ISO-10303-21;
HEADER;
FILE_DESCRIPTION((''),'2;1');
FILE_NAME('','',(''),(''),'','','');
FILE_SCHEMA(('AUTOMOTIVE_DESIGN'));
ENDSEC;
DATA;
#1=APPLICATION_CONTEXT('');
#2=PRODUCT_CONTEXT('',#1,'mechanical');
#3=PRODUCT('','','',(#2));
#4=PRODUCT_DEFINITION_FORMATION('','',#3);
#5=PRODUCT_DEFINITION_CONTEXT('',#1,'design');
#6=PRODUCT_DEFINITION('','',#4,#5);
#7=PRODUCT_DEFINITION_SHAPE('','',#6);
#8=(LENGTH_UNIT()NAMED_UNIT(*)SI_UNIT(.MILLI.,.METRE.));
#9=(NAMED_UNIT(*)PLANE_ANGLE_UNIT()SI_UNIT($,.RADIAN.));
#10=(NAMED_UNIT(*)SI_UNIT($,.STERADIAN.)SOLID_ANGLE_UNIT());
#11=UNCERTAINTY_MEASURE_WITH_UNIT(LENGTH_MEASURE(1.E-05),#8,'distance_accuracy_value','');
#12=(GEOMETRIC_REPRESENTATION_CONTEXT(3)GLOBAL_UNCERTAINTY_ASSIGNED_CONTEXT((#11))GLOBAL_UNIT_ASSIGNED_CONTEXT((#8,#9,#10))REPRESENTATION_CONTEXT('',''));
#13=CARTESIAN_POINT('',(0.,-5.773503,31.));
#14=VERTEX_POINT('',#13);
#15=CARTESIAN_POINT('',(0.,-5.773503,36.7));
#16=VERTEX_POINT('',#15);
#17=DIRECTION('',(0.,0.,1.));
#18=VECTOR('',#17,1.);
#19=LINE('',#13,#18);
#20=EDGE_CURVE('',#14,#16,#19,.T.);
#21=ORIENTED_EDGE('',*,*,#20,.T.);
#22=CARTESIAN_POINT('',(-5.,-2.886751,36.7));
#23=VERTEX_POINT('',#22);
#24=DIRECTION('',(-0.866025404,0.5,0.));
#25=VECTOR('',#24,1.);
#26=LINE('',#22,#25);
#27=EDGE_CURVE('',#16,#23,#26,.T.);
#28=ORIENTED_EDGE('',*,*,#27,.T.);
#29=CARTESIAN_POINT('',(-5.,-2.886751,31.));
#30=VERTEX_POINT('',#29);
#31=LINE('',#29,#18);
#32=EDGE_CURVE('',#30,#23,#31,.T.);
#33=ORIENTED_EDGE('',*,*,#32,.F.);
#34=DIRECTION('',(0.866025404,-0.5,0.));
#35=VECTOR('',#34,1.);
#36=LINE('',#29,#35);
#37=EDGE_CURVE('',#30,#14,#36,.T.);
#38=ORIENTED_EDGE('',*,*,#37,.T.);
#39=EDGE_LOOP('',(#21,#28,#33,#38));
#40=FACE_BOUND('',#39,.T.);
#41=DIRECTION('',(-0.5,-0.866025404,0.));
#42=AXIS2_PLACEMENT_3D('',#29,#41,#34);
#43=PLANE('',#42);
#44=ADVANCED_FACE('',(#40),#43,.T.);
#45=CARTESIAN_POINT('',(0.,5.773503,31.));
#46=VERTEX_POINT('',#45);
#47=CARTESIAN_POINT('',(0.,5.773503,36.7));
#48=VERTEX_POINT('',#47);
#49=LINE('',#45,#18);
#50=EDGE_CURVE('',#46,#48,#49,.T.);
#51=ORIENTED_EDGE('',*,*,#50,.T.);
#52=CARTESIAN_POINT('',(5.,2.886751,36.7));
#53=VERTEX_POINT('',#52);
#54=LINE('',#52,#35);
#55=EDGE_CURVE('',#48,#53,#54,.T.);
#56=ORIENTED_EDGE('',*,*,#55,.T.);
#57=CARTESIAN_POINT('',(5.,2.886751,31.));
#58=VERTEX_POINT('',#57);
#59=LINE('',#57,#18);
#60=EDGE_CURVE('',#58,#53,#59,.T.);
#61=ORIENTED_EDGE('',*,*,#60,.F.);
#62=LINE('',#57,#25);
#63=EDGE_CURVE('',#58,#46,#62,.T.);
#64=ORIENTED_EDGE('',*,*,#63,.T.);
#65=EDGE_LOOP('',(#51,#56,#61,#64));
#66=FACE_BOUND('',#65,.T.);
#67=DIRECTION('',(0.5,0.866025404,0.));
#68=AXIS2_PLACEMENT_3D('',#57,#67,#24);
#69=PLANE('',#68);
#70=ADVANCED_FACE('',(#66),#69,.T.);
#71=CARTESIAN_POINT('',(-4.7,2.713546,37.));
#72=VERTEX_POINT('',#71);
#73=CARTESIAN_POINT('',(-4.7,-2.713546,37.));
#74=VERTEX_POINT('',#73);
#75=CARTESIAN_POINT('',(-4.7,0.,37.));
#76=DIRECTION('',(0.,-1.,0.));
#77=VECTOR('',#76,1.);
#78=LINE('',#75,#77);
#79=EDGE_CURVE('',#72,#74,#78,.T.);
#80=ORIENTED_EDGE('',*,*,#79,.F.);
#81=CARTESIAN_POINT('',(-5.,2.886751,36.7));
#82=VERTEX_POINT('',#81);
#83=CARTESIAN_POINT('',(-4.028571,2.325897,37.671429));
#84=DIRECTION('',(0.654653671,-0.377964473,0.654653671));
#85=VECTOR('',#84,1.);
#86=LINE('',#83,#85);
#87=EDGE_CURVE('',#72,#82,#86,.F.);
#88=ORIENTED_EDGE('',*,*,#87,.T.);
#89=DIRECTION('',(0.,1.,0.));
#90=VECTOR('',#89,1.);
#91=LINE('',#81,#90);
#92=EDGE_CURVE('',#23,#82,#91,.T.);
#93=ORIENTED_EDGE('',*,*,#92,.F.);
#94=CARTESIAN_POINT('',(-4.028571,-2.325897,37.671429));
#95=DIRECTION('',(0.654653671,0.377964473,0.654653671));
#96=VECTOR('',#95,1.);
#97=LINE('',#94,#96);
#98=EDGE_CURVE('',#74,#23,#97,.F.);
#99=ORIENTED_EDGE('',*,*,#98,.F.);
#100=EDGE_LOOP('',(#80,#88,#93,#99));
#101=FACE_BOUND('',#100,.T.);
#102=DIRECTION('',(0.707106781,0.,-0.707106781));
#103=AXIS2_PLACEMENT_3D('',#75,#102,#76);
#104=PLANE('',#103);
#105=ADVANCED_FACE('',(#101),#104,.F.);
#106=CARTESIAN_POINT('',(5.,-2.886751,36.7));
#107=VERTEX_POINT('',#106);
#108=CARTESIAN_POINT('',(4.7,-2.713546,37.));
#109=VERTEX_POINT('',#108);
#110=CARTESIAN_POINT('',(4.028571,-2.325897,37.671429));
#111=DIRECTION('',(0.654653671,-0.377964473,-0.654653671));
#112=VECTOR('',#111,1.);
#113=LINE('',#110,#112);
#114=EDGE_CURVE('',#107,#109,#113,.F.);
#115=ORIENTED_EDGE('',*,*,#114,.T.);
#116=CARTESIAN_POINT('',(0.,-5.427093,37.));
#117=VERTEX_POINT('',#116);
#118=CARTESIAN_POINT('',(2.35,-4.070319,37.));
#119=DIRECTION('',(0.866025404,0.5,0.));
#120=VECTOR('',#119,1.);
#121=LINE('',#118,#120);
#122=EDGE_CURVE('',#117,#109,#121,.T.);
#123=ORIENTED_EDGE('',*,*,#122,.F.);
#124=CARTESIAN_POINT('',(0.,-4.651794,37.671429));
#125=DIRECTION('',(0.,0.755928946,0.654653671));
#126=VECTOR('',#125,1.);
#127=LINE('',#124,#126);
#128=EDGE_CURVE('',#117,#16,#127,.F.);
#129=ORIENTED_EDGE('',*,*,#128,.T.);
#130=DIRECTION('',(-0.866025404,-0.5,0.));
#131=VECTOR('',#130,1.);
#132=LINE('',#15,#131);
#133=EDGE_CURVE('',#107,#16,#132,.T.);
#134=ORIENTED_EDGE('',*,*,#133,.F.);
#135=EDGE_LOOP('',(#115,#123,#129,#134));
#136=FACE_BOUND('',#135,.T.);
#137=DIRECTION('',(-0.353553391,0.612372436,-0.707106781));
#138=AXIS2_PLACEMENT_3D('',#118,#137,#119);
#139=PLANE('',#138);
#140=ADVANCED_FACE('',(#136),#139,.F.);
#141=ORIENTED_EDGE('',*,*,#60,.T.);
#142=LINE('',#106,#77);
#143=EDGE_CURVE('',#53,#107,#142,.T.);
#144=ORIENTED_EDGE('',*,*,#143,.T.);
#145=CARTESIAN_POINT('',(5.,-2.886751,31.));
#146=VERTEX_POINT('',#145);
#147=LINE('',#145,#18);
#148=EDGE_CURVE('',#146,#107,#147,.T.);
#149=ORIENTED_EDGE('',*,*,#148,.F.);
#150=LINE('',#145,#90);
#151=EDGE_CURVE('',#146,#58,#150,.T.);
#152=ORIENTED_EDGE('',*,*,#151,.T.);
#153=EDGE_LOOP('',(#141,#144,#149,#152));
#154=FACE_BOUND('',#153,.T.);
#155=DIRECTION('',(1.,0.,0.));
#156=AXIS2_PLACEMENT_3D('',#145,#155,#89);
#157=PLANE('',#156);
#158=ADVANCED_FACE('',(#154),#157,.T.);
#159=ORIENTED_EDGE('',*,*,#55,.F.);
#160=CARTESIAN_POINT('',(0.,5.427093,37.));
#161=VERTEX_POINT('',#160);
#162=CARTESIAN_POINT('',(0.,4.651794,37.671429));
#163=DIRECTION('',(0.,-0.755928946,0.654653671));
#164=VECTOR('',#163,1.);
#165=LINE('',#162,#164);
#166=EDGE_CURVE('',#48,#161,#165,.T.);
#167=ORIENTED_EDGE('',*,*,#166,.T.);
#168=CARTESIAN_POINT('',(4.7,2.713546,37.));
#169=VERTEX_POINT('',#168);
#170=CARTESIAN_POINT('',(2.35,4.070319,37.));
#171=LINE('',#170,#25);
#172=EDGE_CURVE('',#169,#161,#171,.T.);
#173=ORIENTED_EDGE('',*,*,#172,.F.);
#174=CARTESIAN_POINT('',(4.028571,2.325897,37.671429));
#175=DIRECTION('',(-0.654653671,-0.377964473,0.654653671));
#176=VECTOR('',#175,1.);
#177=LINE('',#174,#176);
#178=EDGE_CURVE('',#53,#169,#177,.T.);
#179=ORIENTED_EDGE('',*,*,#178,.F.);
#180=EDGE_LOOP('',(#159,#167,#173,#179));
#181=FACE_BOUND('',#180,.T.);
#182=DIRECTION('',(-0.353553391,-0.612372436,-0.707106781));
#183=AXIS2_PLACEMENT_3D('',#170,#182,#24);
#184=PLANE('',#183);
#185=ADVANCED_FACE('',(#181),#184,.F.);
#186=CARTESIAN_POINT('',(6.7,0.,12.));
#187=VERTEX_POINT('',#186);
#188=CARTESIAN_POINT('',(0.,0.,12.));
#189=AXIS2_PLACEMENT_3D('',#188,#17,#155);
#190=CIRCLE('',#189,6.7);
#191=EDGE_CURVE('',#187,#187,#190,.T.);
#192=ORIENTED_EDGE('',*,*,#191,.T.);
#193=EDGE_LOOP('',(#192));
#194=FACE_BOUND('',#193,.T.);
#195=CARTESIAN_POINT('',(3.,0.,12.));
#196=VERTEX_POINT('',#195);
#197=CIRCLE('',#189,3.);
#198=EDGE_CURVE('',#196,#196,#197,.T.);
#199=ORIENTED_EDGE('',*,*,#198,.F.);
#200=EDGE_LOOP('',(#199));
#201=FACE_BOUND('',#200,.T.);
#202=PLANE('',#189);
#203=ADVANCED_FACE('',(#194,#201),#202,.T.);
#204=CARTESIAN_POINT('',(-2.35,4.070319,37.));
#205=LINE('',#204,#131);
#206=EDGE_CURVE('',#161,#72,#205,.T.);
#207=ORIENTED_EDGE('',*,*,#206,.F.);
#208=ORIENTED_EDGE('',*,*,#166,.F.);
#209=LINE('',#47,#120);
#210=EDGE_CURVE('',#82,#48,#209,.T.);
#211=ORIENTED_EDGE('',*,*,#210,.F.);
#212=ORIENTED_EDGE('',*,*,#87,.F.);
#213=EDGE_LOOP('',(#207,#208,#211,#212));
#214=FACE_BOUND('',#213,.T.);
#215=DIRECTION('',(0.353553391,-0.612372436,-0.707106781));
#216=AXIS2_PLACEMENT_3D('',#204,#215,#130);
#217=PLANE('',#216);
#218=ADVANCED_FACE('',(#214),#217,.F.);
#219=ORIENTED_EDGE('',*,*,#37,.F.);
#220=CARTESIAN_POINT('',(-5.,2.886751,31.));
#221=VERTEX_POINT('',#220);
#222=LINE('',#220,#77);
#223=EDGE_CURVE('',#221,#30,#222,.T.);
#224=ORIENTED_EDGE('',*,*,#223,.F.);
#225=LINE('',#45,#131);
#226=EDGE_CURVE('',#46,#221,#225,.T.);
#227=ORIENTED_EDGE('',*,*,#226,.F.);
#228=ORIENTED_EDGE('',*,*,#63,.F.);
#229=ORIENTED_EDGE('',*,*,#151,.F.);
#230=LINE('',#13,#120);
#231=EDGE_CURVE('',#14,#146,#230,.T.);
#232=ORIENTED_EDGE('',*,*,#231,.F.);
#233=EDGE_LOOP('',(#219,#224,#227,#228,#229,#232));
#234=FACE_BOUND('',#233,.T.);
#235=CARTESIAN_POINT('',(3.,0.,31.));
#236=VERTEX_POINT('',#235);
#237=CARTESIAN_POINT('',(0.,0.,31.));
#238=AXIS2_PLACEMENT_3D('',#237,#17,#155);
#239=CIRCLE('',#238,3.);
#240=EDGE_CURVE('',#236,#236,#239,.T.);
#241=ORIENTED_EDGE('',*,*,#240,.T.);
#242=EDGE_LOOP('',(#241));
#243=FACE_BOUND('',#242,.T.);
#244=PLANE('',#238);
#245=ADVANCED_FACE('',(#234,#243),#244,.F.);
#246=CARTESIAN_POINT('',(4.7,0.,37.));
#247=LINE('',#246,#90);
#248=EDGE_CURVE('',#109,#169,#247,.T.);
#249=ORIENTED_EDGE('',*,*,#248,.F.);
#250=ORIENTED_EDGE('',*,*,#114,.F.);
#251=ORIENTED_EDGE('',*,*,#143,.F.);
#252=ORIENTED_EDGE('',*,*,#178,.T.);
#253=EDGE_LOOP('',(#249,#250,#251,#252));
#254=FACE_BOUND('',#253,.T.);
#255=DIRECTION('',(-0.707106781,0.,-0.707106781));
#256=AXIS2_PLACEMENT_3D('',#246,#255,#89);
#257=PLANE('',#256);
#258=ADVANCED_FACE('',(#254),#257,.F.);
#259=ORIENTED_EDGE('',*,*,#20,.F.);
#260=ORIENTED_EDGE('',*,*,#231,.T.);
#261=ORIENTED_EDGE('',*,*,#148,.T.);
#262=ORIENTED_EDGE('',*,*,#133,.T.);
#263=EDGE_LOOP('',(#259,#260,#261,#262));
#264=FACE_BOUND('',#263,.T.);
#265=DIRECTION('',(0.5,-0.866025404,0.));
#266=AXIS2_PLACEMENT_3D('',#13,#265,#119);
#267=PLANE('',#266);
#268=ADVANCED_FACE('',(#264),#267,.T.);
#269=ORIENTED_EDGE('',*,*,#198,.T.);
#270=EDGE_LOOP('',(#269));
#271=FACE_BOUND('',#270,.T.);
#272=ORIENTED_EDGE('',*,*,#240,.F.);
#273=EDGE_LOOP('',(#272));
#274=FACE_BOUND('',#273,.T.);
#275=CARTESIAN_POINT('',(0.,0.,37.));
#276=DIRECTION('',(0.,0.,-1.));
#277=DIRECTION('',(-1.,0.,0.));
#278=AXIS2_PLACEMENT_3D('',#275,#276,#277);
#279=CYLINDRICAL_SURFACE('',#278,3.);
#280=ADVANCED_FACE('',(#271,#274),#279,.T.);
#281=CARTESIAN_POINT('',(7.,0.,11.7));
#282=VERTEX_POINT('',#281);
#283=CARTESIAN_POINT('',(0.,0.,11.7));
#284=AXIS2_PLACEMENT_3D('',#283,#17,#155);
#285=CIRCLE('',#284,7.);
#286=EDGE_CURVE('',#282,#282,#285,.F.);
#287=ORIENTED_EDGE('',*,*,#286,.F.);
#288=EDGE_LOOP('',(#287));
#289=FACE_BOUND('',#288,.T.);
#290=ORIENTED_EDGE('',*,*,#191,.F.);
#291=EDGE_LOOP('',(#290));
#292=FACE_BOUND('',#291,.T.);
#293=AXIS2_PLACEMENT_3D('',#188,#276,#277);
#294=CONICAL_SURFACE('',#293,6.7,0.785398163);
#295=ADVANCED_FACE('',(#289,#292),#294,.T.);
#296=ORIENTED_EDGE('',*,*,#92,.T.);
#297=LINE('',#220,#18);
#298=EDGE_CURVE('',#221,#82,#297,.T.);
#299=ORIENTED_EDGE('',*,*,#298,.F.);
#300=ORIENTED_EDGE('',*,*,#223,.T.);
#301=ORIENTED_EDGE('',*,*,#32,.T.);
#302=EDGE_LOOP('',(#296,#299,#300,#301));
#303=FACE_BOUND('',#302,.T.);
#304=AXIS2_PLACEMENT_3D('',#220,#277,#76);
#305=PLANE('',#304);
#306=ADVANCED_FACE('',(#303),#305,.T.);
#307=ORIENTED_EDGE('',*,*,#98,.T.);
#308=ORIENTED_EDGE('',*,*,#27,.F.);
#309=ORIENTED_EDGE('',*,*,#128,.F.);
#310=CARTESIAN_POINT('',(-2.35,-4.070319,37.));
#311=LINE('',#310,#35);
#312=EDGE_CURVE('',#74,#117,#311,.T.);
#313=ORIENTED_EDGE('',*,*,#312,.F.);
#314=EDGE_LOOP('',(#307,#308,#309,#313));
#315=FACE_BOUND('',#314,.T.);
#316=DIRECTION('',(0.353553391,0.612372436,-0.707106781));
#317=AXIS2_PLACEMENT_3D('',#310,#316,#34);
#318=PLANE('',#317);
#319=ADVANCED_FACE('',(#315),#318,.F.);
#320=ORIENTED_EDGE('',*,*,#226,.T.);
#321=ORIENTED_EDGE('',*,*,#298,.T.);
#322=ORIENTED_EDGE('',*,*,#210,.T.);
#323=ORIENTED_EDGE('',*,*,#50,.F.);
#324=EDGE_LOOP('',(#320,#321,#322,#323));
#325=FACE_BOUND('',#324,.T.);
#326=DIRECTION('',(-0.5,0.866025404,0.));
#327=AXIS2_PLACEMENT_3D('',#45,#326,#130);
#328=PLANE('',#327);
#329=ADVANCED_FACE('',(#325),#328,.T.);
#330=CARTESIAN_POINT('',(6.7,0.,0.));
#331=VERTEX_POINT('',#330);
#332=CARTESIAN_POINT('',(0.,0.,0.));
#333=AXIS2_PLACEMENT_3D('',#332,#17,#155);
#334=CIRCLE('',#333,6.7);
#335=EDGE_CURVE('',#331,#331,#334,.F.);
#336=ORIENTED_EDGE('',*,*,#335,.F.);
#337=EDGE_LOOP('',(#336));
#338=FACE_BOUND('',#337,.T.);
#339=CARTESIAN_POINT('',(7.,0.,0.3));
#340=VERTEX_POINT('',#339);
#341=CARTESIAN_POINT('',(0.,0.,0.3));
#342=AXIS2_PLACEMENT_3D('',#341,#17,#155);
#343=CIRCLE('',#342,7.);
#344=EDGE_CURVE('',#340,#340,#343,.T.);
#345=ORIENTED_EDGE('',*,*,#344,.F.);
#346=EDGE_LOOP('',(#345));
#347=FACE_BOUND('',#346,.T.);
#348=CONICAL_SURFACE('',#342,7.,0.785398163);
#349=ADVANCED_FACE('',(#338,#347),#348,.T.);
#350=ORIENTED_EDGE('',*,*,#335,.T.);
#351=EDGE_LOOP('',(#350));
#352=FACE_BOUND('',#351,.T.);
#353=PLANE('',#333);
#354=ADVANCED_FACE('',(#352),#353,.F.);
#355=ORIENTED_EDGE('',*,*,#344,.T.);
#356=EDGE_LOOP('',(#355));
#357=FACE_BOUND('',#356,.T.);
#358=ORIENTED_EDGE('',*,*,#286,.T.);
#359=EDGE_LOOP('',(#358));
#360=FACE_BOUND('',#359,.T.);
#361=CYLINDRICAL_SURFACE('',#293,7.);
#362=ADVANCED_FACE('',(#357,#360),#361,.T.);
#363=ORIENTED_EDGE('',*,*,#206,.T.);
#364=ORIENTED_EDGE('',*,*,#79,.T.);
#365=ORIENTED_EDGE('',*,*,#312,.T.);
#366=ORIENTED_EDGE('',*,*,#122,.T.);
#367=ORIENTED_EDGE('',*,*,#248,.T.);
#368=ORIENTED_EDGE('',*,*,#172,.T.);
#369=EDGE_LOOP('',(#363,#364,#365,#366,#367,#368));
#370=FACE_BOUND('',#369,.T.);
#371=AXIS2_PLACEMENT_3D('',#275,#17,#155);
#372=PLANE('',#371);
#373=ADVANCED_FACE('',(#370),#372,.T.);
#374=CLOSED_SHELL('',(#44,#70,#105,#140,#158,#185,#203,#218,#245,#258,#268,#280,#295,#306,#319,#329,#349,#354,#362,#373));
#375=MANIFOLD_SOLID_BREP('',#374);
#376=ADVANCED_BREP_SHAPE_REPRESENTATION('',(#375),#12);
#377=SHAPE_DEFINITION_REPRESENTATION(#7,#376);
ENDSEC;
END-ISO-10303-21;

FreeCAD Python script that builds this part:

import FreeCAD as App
import Part
import Sketcher
from FreeCAD import Vector
Q = App.Units.Quantity


def edges_at(feature, points):
    """Names of the edges that pass closest to the given points."""
    edges = feature.Shape.Edges
    near = lambda p: min(range(len(edges)), key=lambda i: edges[i].distToShape(Part.Vertex(*p))[0])
    return sorted({f"Edge{near(p) + 1}" for p in points})


def add_polygon(sketch, points):
    """Adds a closed chain of lines whose ends are joined by coincident constraints."""
    first, n = sketch.GeometryCount, len(points)
    for a, b in zip(points, points[1:] + points[:1]):
        sketch.addGeometry(Part.LineSegment(App.Vector(*a, 0), App.Vector(*b, 0)), False)
    for i in range(n):
        sketch.addConstraint(Sketcher.Constraint("Coincident", first + i, 2, first + (i + 1) % n, 1))

doc = App.newDocument("Part")
body = doc.addObject("PartDesign::Body", "Body")

# Sketch on XY plane
sketch1 = body.newObject("Sketcher::SketchObject", "Sketch")
sketch1.AttachmentSupport = (doc.getObject("XY_Plane"), [""])
sketch1.MapMode = "FlatFace"
sketch1.addGeometry(Part.Circle(Vector(0, 0, 0), Vector(0, 0, 1), 7), False)
sketch1.addConstraint([
    Sketcher.Constraint("Coincident", 0, 3, -1, 1),
    Sketcher.Constraint("Diameter", 0, Q("14 mm")),
])
pad1 = body.newObject("PartDesign::Pad", "Pad")
pad1.Profile = sketch1
pad1.Length = 12

# Sketch on XY plane
sketch2 = body.newObject("Sketcher::SketchObject", "Sketch001")
sketch2.AttachmentSupport = (doc.getObject("XY_Plane"), [""])
sketch2.MapMode = "FlatFace"
sketch2.AttachmentOffset = App.Placement(Vector(0, 0, 12), App.Rotation())
sketch2.addGeometry(Part.Circle(Vector(0, 0, 0), Vector(0, 0, 1), 3), False)
sketch2.addConstraint([
    Sketcher.Constraint("Coincident", 0, 3, -1, 1),
    Sketcher.Constraint("Diameter", 0, Q("6 mm")),
])
pad2 = body.newObject("PartDesign::Pad", "Pad001")
pad2.Profile = sketch2
pad2.Length = 25

# Sketch on XY plane
sketch3 = body.newObject("Sketcher::SketchObject", "Sketch002")
sketch3.AttachmentSupport = (doc.getObject("XY_Plane"), [""])
sketch3.MapMode = "FlatFace"
sketch3.AttachmentOffset = App.Placement(Vector(0, 0, 37), App.Rotation())
add_polygon(sketch3, [(5, 3), (0, 6), (-5, 3), (-5, -3), (0, -6), (5, -3)])  # lines 0-5
sketch3.addConstraint([
    Sketcher.Constraint("Vertical", 2),
    Sketcher.Constraint("Vertical", 5),
    Sketcher.Constraint("Symmetric", 0, 2, 3, 2, -1, 1),
    Sketcher.Constraint("Symmetric", 1, 2, 4, 2, -1, 1),
    Sketcher.Constraint("PointOnObject", 0, 2, -2),
    Sketcher.Constraint("Parallel", 0, 3),
    Sketcher.Constraint("Horizontal", 2, 2, 4, 2),
    Sketcher.Constraint("Angle", 0, Q("150 deg")),
    Sketcher.Constraint("DistanceX", 1, 2, -1, 1, Q("5 mm")),
    Sketcher.Constraint("DistanceY", 2, 2, 2, 1, Q("5.773503 mm")),
])
pad3 = body.newObject("PartDesign::Pad", "Pad002")
pad3.Profile = sketch3
pad3.Length = 6
pad3.Reversed = True
doc.recompute()

chamfer = body.newObject("PartDesign::Chamfer", "Chamfer")
chamfer.Base = (pad3, edges_at(pad3, [
    (5, 0, 37),
    (2.5, 4.33, 37),
    (-2.5, 4.33, 37),
    (-5, 0, 37),
    (-2.5, -4.33, 37),
    (2.5, -4.33, 37),
    (-7, 0, 0),
    (-7, 0, 12),
]))
chamfer.Size = 0.3

doc.recompute()
